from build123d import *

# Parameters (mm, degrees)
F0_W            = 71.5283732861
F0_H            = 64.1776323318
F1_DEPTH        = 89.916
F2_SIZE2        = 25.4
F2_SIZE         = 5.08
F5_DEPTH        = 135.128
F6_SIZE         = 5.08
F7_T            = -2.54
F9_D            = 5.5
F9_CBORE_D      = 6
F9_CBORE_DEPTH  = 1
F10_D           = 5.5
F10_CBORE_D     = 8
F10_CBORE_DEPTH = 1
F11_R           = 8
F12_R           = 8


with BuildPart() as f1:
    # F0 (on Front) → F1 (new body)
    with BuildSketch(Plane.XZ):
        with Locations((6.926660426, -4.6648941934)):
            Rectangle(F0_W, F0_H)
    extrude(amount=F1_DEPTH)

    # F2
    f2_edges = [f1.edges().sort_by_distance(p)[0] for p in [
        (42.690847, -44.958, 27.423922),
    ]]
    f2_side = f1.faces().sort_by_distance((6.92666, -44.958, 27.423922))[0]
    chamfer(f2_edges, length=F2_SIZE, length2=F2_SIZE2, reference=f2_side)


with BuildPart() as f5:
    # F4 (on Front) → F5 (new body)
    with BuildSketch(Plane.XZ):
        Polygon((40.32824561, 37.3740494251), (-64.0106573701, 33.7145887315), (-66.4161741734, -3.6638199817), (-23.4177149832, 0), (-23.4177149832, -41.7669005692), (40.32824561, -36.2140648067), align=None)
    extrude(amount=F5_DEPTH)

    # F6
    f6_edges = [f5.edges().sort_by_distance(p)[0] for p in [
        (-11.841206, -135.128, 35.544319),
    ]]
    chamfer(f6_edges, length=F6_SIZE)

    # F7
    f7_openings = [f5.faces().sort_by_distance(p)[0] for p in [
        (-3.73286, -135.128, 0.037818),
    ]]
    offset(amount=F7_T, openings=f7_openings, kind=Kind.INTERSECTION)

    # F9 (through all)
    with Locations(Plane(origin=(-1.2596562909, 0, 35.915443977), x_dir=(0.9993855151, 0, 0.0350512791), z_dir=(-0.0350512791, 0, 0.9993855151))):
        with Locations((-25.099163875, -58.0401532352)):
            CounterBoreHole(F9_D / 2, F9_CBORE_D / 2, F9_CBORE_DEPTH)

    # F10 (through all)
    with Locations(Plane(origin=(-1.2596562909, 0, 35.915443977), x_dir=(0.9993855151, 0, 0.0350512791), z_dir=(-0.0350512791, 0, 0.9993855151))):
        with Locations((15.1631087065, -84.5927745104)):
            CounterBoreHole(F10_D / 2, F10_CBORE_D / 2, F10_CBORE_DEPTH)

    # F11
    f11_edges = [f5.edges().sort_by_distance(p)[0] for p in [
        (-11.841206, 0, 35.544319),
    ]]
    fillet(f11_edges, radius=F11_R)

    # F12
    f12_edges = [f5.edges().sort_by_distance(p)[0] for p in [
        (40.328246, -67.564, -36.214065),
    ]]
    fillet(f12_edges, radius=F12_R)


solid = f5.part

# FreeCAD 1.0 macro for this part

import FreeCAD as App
import Part
import Sketcher

V = App.Vector
Q = App.Units.Quantity


def edges_at(feature, points):
    """Names of the edges that pass closest to the given points."""
    edges = feature.Shape.Edges
    near = lambda p: min(range(len(edges)), key=lambda i: edges[i].distToShape(Part.Vertex(*p))[0])
    return sorted({f"Edge{near(p) + 1}" for p in points})


def faces_at(feature, points):
    """Names of the faces that lie closest to the given points."""
    faces = feature.Shape.Faces
    near = lambda p: min(range(len(faces)), key=lambda i: faces[i].distToShape(Part.Vertex(*p))[0])
    return sorted({f"Face{near(p) + 1}" for p in points})


def add_polygon(sketch, points):
    """Adds a closed chain of lines whose ends are joined by coincident constraints."""
    first, n = sketch.GeometryCount, len(points)
    for a, b in zip(points, points[1:] + points[:1]):
        sketch.addGeometry(Part.LineSegment(App.Vector(*a, 0), App.Vector(*b, 0)), False)
    for i in range(n):
        sketch.addConstraint(Sketcher.Constraint("Coincident", first + i, 2, first + (i + 1) % n, 1))

doc = App.newDocument("Part")
body = doc.addObject("PartDesign::Body", "Body")

sketch1 = doc.addObject("Sketcher::SketchObject", "Sketch")
body.addObject(sketch1)
sketch1.AttachmentSupport = (doc.XZ_Plane, [""])
sketch1.MapMode = "FlatFace"
add_polygon(sketch1, [(-29, 27), (-29, -37), (43, -37), (43, 27)])
sketch1.addConstraint([
    Sketcher.Constraint("Vertical", 0),
    Sketcher.Constraint("Horizontal", 1),
    Sketcher.Constraint("Vertical", 2),
    Sketcher.Constraint("Horizontal", 3),
    Sketcher.Constraint("DistanceX", 1, 1, 1, 2, Q("71.528373 mm")),
    Sketcher.Constraint("DistanceY", 0, 2, 0, 1, Q("64.177632 mm")),
    Sketcher.Constraint("DistanceY", 0, 2, -1, 1, Q("36.75371 mm")),
    Sketcher.Constraint("DistanceX", 0, 2, -1, 1, Q("28.837526 mm")),
])
pad1 = doc.addObject("PartDesign::Pad", "Pad")
body.addObject(pad1)
pad1.Profile = sketch1
pad1.Length = Q("3.54 in")
doc.recompute()

chamfer = doc.addObject("PartDesign::Chamfer", "Chamfer")
body.addObject(chamfer)
chamfer.Base = (pad1, edges_at(pad1, [(42.691, -44.958, 27.424)]))
chamfer.ChamferType = "Two distances"
chamfer.Size = Q("0.2 in")
chamfer.Size2 = Q("1 in")
chamfer.FlipDirection = True
body2 = doc.addObject("PartDesign::Body", "Body001")

sketch2 = doc.addObject("Sketcher::SketchObject", "Sketch001")
body2.addObject(sketch2)
sketch2.AttachmentSupport = (doc.getObject("XZ_Plane001"), [""])
sketch2.MapMode = "FlatFace"
add_polygon(sketch2, [(40, 37), (-64, 34), (-66, -4), (-23, 0), (-23, -42), (40, -36)])
sketch2.addConstraint([
    Sketcher.Constraint("Vertical", 3),
    Sketcher.Constraint("Vertical", 5),
    Sketcher.Constraint("PointOnObject", 2, 2, -1),
    Sketcher.Constraint("DistanceY", 3, 2, 3, 1, Q("41.766901 mm")),
    Sketcher.Constraint("Distance", 2, Q("43.154271 mm")),
    Sketcher.Constraint("DistanceY", 5, 1, 5, 2, Q("73.588114 mm")),
    Sketcher.Constraint("DistanceY", -1, 1, 0, 2, Q("33.714589 mm")),
    Sketcher.Constraint("DistanceY", 1, 2, -1, 1, Q("3.66382 mm")),
    Sketcher.Constraint("DistanceY", -1, 1, 5, 2, Q("37.374049 mm")),
    Sketcher.Constraint("DistanceX", 3, 2, 4, 2, Q("63.745961 mm")),
    Sketcher.Constraint("Distance", 0, Q("104.403057 mm")),
    Sketcher.Constraint("DistanceX", 0, 2, -1, 1, Q("64.010657 mm")),
])
pad2 = doc.addObject("PartDesign::Pad", "Pad001")
body2.addObject(pad2)
pad2.Profile = sketch2
pad2.Length = Q("5.32 in")
doc.recompute()

chamfer2 = doc.addObject("PartDesign::Chamfer", "Chamfer001")
body2.addObject(chamfer2)
chamfer2.Base = (pad2, edges_at(pad2, [(-11.841, -135.128, 35.544)]))
chamfer2.Size = Q("0.2 in")
doc.recompute()

thickness = doc.addObject("PartDesign::Thickness", "Thickness")
body2.addObject(thickness)
thickness.Base = (chamfer2, faces_at(chamfer2, [(-13.044, -135.128, -4.738)]))
thickness.Value = Q("0.1 in")
thickness.Reversed = True
thickness.Join = "Intersection"

sketch3 = doc.addObject("Sketcher::SketchObject", "Sketch002")
body2.addObject(sketch3)
sketch3.Placement = App.Placement(V(-1.259656, 0, 35.915444), App.Rotation(V(0.999385515, 0, 0.035051279), V(0, 1, 0), V(-0.035051279, 0, 0.999385515), "ZXY"))
sketch3.addGeometry(Part.Circle(V(-25.1, -58, 0), V(0, 0, 1), 2.8), False)
sketch3.addConstraint([
    Sketcher.Constraint("Diameter", 0, Q("5.5 mm")),
    Sketcher.Constraint("DistanceX", 0, 3, -1, 1, Q("25.099164 mm")),
    Sketcher.Constraint("DistanceY", 0, 3, -1, 1, Q("58.040153 mm")),
])
doc.recompute()
hole = doc.addObject("PartDesign::Hole", "Hole")
body2.addObject(hole)
hole.Profile = sketch3
hole.ThreadType = "None"
hole.Diameter = 5.5
hole.DepthType = "ThroughAll"
hole.HoleCutType = "Counterbore"
hole.HoleCutDiameter = 6
hole.HoleCutDepth = 1

sketch4 = doc.addObject("Sketcher::SketchObject", "Sketch003")
body2.addObject(sketch4)
sketch4.Placement = App.Placement(V(-1.259656, 0, 35.915444), App.Rotation(V(0.999385515, 0, 0.035051279), V(0, 1, 0), V(-0.035051279, 0, 0.999385515), "ZXY"))
sketch4.addGeometry(Part.Circle(V(15.2, -84.6, 0), V(0, 0, 1), 2.8), False)
sketch4.addConstraint([
    Sketcher.Constraint("Diameter", 0, Q("5.5 mm")),
    Sketcher.Constraint("DistanceX", -1, 1, 0, 3, Q("15.163109 mm")),
    Sketcher.Constraint("DistanceY", 0, 3, -1, 1, Q("84.592774 mm")),
])
doc.recompute()
hole2 = doc.addObject("PartDesign::Hole", "Hole001")
body2.addObject(hole2)
hole2.Profile = sketch4
hole2.ThreadType = "None"
hole2.Diameter = 5.5
hole2.DepthType = "ThroughAll"
hole2.HoleCutType = "Counterbore"
hole2.HoleCutDiameter = 8
hole2.HoleCutDepth = 1
doc.recompute()

fillet = doc.addObject("PartDesign::Fillet", "Fillet")
body2.addObject(fillet)
fillet.Base = (hole2, edges_at(hole2, [(-11.841, 0, 35.544)]))
fillet.Radius = 8
doc.recompute()

fillet2 = doc.addObject("PartDesign::Fillet", "Fillet001")
body2.addObject(fillet2)
fillet2.Base = (fillet, edges_at(fillet, [(40.328, -67.564, -36.214)]))
fillet2.Radius = 8
body.Visibility = False

doc.recompute()
